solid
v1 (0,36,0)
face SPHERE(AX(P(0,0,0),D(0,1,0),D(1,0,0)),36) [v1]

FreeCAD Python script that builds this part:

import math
import FreeCAD as App
import Part
import Sketcher

doc = App.newDocument("Part")
body = doc.addObject("PartDesign::Body", "Body")

sketch1 = body.newObject("Sketcher::SketchObject", "Sketch")
sketch1.AttachmentSupport = (doc.getObject("XY_Plane"), [""])
sketch1.MapMode = "FlatFace"
sketch1.addGeometry(Part.LineSegment(App.Vector(0, -36, 0), App.Vector(0, 36, 0)), False)
sketch1.addGeometry(Part.ArcOfCircle(Part.Circle(App.Vector(0, 0, 0), App.Vector(0, 0, 1), 36), math.radians(90), math.radians(270)), False)
sketch1.addConstraint(Sketcher.Constraint("Coincident", 0, 1, 1, 2))
sketch1.addConstraint(Sketcher.Constraint("Coincident", 1, 1, 0, 2))
sketch1.addConstraint(Sketcher.Constraint("Vertical", 0))
sketch1.addConstraint(Sketcher.Constraint("Coincident", 1, 3, -1, 1))
sketch1.addConstraint(Sketcher.Constraint("PointOnObject", 0, 1, -2))
sketch1.addConstraint(Sketcher.Constraint("Radius", 1, 36.0))
revolution = body.newObject("PartDesign::Revolution", "Revolution")
revolution.Profile = sketch1
revolution.ReferenceAxis = (sketch1, ["V_Axis"])
revolution.Angle = 360

doc.recompute()
